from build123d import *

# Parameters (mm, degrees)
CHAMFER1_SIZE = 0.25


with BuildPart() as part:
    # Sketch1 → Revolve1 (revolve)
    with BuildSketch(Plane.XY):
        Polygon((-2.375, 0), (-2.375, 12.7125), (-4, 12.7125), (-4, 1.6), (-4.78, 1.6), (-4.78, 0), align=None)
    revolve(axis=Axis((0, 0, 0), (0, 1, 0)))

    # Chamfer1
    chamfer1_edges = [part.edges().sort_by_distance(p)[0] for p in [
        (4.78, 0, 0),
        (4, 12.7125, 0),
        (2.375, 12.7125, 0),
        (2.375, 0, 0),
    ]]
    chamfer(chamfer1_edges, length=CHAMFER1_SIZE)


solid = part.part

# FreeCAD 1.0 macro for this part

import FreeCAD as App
import Part
import Sketcher
Q = App.Units.Quantity


def edges_at(feature, points):
    """Names of the edges that pass closest to the given points."""
    edges = feature.Shape.Edges
    near = lambda p: min(range(len(edges)), key=lambda i: edges[i].distToShape(Part.Vertex(*p))[0])
    return sorted({f"Edge{near(p) + 1}" for p in points})

doc = App.newDocument("Part")
body = doc.addObject("PartDesign::Body", "Body")

# Sketch on XY plane
sketch1 = doc.addObject("Sketcher::SketchObject", "Sketch")
body.addObject(sketch1)
sketch1.AttachmentSupport = (doc.XY_Plane, [""])
sketch1.MapMode = "FlatFace"
sketch1.addGeometry([
    Part.LineSegment(App.Vector(-2.4, 0, 0), App.Vector(-2.4, 12.7, 0)),  # 0
    Part.LineSegment(App.Vector(-2.4, 12.7, 0), App.Vector(-4, 12.7, 0)),  # 1
    Part.LineSegment(App.Vector(-4, 12.7, 0), App.Vector(-4, 1.6, 0)),  # 2
    Part.LineSegment(App.Vector(-4, 1.6, 0), App.Vector(-4.8, 1.6, 0)),  # 3
    Part.LineSegment(App.Vector(-4.8, 1.6, 0), App.Vector(-4.8, 0, 0)),  # 4
    Part.LineSegment(App.Vector(-4.8, 0, 0), App.Vector(-2.4, 0, 0)),  # 5
], False)
sketch1.addConstraint([
    Sketcher.Constraint("Coincident", 0, 2, 1, 1),
    Sketcher.Constraint("Coincident", 1, 2, 2, 1),
    Sketcher.Constraint("Coincident", 2, 2, 3, 1),
    Sketcher.Constraint("Coincident", 3, 2, 4, 1),
    Sketcher.Constraint("Coincident", 4, 2, 5, 1),
    Sketcher.Constraint("Coincident", 5, 2, 0, 1),
    Sketcher.Constraint("Vertical", 0),
    Sketcher.Constraint("Horizontal", 1),
    Sketcher.Constraint("Vertical", 2),
    Sketcher.Constraint("Horizontal", 3),
    Sketcher.Constraint("Vertical", 4),
    Sketcher.Constraint("Horizontal", 5),
    Sketcher.Constraint("PointOnObject", 4, 2, -1),
    Sketcher.Constraint("DistanceY", 4, 2, 4, 1, Q("1.6 mm")),
    Sketcher.Constraint("DistanceX", 1, 2, -1, 1, Q("4 mm")),
    Sketcher.Constraint("DistanceX", 3, 2, 3, 1, Q("0.78 mm")),
    Sketcher.Constraint("DistanceX", 1, 2, 1, 1, Q("1.625 mm")),
    Sketcher.Constraint("DistanceY", 0, 1, 0, 2, Q("12.7125 mm")),
])
revolution = doc.addObject("PartDesign::Revolution", "Revolution")
body.addObject(revolution)
revolution.Profile = sketch1
revolution.ReferenceAxis = (sketch1, ["V_Axis"])
revolution.Angle = 360
doc.recompute()

chamfer = doc.addObject("PartDesign::Chamfer", "Chamfer")
body.addObject(chamfer)
chamfer.Base = (revolution, edges_at(revolution, [
    (4.78, 0, 0),
    (4, 12.713, 0),
    (2.375, 12.713, 0),
    (2.375, 0, 0),
]))
chamfer.Size = 0.25

doc.recompute()
